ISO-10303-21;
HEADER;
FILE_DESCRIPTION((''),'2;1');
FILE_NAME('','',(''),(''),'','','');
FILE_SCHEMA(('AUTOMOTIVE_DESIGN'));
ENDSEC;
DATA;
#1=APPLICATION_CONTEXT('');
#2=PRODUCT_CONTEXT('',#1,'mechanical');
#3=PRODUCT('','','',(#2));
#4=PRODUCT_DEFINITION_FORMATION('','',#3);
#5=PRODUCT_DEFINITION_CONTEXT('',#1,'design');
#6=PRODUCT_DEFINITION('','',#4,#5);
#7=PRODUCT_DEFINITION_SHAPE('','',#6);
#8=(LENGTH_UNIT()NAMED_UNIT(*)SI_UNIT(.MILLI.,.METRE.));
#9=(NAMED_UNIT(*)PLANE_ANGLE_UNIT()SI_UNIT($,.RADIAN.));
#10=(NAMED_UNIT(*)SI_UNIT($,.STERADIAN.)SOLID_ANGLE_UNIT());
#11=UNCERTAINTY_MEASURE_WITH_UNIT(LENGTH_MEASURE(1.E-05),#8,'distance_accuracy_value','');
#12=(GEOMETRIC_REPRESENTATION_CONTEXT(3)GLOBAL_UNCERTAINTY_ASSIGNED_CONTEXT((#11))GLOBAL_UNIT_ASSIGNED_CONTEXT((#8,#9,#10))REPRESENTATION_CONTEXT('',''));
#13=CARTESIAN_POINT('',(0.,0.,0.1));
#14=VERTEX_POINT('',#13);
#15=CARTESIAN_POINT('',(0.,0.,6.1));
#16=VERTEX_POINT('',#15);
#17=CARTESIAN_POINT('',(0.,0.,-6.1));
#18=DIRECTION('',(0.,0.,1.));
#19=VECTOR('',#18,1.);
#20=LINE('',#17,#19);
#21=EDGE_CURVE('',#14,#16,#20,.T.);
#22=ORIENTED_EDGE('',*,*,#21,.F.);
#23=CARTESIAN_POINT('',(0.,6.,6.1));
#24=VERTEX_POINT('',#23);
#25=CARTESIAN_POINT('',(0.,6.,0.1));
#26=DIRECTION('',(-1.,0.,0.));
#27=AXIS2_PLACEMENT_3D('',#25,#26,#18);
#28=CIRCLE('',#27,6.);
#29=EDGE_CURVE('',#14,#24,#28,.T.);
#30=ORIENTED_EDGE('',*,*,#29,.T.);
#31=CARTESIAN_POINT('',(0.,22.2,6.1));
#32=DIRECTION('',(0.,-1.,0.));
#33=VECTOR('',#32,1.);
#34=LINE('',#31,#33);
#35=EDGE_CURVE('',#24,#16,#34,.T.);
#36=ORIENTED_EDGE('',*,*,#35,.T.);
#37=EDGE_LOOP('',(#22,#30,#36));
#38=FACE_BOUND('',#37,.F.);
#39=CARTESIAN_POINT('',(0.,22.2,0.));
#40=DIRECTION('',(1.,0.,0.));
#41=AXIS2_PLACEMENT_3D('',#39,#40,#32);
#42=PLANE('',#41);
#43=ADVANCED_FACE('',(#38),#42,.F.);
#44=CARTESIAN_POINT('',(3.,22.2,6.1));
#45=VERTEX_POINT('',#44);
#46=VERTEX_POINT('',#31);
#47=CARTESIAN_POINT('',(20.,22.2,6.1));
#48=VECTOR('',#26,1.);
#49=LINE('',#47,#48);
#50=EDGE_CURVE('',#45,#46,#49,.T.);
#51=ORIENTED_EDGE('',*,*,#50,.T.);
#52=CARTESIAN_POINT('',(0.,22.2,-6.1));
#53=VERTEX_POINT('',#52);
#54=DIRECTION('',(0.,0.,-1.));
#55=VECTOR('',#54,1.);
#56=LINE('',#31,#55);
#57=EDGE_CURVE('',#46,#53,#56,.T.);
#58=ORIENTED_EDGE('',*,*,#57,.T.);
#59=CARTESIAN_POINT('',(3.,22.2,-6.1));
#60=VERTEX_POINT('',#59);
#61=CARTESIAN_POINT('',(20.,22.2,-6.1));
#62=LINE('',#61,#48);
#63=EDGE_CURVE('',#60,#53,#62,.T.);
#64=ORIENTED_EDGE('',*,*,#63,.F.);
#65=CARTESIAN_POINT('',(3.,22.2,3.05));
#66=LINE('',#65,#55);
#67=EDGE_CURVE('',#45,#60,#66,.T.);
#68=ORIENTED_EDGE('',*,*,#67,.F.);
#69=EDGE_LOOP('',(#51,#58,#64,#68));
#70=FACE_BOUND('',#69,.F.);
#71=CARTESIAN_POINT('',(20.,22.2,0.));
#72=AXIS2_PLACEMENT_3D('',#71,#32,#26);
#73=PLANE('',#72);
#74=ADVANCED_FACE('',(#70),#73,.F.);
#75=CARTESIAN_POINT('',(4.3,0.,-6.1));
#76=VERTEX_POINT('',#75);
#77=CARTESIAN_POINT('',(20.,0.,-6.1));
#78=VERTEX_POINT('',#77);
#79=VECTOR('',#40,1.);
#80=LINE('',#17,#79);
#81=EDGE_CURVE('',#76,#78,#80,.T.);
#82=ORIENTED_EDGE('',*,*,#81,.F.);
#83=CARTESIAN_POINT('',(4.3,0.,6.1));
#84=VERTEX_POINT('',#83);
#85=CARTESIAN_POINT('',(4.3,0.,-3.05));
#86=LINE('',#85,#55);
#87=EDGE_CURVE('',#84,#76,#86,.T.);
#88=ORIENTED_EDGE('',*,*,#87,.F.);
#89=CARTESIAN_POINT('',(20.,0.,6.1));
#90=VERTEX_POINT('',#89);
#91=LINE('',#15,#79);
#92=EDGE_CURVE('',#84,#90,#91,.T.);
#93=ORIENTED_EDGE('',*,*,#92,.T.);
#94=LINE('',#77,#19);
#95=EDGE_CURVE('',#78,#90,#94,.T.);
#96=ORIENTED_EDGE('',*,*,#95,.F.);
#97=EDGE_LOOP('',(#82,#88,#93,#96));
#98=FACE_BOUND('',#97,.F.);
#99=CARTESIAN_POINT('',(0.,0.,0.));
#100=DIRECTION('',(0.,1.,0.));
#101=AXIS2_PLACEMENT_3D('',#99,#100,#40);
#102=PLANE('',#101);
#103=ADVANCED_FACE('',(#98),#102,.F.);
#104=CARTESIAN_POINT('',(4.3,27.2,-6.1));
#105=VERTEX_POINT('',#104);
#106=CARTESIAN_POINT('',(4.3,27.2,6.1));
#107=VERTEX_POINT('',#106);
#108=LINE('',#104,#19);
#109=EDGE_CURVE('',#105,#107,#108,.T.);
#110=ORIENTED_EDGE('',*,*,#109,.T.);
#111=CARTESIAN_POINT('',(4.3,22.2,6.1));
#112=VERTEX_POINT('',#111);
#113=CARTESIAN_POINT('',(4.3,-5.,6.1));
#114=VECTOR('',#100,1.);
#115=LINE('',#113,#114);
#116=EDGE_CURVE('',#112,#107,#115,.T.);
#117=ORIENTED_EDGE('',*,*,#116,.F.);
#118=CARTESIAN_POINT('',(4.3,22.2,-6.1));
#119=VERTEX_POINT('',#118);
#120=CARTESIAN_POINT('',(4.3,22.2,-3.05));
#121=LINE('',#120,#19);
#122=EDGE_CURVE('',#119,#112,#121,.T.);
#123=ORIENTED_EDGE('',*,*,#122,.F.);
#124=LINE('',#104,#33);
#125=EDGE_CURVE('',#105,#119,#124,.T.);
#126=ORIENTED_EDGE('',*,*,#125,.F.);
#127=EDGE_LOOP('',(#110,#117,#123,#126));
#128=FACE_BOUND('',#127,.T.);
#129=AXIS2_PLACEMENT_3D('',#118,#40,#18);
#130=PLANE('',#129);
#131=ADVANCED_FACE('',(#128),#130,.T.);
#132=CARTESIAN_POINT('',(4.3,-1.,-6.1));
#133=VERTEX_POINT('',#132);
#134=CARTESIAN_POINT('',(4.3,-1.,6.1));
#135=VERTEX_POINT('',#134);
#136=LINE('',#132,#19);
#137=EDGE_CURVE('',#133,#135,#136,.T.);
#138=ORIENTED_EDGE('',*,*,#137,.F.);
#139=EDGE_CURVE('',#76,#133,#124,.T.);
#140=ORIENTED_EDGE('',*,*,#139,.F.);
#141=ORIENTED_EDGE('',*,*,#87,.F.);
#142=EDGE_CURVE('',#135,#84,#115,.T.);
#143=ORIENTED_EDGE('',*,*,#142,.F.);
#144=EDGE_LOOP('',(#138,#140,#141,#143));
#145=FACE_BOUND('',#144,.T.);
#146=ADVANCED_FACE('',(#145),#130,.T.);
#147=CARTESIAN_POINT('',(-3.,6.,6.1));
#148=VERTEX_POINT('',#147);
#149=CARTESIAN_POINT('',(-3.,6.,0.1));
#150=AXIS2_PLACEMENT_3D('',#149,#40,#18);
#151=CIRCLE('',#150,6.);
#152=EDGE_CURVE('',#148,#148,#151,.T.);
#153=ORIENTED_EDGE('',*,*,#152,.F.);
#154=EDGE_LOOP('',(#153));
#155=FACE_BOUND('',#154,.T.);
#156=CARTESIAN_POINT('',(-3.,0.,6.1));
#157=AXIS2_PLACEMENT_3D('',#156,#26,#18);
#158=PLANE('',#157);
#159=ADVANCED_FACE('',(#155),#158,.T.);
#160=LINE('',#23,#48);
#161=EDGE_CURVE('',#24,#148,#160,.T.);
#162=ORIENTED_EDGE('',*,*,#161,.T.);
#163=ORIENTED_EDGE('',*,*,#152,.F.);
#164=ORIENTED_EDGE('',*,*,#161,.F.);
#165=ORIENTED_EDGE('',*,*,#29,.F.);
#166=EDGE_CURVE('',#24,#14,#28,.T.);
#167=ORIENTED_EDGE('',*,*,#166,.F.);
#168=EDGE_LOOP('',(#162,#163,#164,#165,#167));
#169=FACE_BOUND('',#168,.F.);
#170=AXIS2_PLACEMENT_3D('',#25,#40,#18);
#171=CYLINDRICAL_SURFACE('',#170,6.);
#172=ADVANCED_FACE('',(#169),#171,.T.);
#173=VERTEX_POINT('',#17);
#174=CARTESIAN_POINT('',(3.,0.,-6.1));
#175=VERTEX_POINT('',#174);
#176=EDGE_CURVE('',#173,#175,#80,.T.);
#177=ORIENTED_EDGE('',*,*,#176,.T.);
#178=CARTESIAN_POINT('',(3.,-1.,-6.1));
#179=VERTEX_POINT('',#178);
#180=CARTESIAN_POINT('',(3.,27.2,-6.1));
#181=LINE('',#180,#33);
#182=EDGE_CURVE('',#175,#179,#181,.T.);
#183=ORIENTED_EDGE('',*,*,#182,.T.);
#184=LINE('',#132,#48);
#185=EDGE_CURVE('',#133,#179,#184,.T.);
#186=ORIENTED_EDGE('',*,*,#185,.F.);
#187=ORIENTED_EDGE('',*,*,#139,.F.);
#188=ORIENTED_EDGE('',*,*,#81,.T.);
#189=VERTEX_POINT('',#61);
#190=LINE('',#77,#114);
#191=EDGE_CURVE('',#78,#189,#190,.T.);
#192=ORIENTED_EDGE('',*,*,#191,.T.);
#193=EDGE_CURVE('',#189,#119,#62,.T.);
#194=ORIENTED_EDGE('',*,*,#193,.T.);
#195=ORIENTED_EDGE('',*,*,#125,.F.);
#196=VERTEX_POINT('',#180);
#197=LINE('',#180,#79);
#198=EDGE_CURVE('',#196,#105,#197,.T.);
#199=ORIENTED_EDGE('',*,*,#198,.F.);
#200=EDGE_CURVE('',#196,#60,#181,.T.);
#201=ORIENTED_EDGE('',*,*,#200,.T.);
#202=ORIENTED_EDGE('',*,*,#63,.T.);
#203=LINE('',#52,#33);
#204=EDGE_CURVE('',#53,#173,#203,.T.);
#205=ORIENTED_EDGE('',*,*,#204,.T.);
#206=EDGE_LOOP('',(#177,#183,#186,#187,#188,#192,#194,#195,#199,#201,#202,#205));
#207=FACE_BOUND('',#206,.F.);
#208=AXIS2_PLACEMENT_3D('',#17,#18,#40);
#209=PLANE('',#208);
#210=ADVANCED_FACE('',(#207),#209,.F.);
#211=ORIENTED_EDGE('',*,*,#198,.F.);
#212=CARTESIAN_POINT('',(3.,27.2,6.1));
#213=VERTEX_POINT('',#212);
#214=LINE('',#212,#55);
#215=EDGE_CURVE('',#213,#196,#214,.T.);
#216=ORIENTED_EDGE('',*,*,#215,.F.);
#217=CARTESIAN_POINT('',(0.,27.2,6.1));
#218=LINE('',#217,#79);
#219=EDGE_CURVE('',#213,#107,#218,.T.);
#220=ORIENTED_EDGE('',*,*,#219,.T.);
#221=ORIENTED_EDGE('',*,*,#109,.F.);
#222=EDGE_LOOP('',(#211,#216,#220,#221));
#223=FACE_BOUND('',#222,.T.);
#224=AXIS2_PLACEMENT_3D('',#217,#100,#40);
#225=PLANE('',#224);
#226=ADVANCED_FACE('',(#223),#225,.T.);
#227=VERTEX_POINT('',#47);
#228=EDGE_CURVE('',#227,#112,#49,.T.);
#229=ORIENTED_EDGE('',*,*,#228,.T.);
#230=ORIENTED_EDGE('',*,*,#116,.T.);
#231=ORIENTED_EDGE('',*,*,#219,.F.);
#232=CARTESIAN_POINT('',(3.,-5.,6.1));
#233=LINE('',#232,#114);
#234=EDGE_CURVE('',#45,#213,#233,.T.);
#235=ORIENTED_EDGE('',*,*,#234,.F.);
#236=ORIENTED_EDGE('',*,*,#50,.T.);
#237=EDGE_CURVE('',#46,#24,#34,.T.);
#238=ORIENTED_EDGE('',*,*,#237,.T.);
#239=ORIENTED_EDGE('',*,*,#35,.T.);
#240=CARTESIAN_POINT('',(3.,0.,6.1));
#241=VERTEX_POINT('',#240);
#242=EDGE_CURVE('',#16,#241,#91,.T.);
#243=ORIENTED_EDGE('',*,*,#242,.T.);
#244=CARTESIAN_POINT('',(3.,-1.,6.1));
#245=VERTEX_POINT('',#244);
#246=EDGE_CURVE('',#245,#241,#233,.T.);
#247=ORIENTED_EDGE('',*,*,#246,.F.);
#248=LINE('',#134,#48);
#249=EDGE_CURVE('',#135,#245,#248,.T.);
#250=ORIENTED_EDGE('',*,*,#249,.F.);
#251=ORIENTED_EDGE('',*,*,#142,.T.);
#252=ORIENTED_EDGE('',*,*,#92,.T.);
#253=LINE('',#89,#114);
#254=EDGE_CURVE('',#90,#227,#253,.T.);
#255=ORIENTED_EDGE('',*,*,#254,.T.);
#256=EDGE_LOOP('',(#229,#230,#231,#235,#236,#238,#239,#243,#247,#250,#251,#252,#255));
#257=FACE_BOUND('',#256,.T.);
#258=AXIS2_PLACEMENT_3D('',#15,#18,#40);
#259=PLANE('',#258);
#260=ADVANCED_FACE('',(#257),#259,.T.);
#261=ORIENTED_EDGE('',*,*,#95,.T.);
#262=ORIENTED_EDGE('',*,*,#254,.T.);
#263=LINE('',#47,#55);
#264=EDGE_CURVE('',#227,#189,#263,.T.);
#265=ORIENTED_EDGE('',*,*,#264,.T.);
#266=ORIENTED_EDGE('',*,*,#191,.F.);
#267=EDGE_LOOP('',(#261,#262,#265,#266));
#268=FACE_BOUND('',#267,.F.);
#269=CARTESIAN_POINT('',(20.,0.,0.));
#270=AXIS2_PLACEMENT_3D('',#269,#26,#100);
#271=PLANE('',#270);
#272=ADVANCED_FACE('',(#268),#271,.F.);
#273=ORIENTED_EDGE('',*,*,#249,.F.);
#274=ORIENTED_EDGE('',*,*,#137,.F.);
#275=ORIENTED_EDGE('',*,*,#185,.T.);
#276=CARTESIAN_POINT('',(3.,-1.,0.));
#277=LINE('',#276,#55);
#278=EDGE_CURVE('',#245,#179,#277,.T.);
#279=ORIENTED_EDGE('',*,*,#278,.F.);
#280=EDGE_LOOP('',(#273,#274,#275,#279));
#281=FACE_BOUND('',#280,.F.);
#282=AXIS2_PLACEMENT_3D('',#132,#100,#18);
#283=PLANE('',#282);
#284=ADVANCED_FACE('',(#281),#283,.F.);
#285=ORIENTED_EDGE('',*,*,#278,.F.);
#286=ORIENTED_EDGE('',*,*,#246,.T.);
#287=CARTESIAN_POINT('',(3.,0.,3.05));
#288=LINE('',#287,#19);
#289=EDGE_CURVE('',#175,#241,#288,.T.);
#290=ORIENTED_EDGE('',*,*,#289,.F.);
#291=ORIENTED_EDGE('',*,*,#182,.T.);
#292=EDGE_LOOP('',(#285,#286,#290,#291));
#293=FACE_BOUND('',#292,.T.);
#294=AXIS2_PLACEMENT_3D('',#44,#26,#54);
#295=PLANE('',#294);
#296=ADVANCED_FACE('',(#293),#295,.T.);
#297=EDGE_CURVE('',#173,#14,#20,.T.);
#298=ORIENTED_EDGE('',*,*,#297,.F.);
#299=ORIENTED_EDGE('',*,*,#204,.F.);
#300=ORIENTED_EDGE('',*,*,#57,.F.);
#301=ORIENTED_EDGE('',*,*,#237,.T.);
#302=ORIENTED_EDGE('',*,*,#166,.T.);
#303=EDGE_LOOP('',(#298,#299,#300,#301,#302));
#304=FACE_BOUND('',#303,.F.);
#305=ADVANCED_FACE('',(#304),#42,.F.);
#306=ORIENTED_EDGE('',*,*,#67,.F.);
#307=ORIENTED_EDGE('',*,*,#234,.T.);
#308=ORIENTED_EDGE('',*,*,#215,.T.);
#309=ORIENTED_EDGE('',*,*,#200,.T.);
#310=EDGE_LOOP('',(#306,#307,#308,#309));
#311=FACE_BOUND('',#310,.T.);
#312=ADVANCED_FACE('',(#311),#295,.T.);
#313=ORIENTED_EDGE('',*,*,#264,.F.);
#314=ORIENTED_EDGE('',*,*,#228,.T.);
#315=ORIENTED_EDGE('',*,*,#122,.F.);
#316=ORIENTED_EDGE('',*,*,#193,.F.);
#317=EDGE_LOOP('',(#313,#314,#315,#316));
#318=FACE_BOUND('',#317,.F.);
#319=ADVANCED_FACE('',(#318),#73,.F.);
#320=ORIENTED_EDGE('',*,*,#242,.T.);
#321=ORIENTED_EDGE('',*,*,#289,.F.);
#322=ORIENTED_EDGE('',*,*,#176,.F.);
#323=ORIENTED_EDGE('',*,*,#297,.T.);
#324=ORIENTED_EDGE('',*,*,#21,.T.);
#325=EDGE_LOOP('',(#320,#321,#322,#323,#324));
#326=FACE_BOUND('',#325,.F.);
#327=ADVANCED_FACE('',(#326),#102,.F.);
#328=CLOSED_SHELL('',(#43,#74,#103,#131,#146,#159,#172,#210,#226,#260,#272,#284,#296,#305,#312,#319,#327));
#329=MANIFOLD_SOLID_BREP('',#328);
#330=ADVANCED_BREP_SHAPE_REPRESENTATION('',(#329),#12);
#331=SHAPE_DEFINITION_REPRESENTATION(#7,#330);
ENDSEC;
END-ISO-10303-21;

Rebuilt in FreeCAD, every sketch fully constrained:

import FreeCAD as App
import Part
import Sketcher
Q = App.Units.Quantity

doc = App.newDocument("Part")
body = doc.addObject("PartDesign::Body", "Body")

# Sketch on XY plane
sketch1 = body.newObject("Sketcher::SketchObject", "Sketch")
sketch1.AttachmentSupport = (doc.getObject("XY_Plane"), [""])
sketch1.MapMode = "FlatFace"
sketch1.addGeometry(Part.LineSegment(App.Vector(0, 22, 0), App.Vector(0, 0, 0)), False)
sketch1.addGeometry(Part.LineSegment(App.Vector(0, 0, 0), App.Vector(20, 0, 0)), False)
sketch1.addGeometry(Part.LineSegment(App.Vector(20, 0, 0), App.Vector(20, 22, 0)), False)
sketch1.addGeometry(Part.LineSegment(App.Vector(20, 22, 0), App.Vector(0, 22, 0)), False)
sketch1.addConstraint(Sketcher.Constraint("Coincident", 0, 2, 1, 1))
sketch1.addConstraint(Sketcher.Constraint("Coincident", 1, 2, 2, 1))
sketch1.addConstraint(Sketcher.Constraint("Coincident", 2, 2, 3, 1))
sketch1.addConstraint(Sketcher.Constraint("Coincident", 3, 2, 0, 1))
sketch1.addConstraint(Sketcher.Constraint("Vertical", 0))
sketch1.addConstraint(Sketcher.Constraint("Horizontal", 1))
sketch1.addConstraint(Sketcher.Constraint("Vertical", 2))
sketch1.addConstraint(Sketcher.Constraint("Horizontal", 3))
sketch1.addConstraint(Sketcher.Constraint("Coincident", 0, 2, -1, 1))
sketch1.addConstraint(Sketcher.Constraint("DistanceX", 1, 1, 1, 2, Q("20 mm")))
sketch1.addConstraint(Sketcher.Constraint("DistanceY", 0, 2, 0, 1, Q("22.2 mm")))
pad1 = body.newObject("PartDesign::Pad", "Pad")
pad1.Profile = sketch1
pad1.Length = 12.2
pad1.Midplane = True

# Sketch on YZ plane
sketch2 = body.newObject("Sketcher::SketchObject", "Sketch001")
sketch2.AttachmentSupport = (doc.getObject("YZ_Plane"), [""])
sketch2.MapMode = "FlatFace"
sketch2.addGeometry(Part.Circle(App.Vector(6, 0, 0), App.Vector(0, 0, 1), 6), False)
sketch2.addConstraint(Sketcher.Constraint("Diameter", 0, Q("12 mm")))
sketch2.addConstraint(Sketcher.Constraint("DistanceX", -1, 1, 0, 3, Q("6 mm")))
sketch2.addConstraint(Sketcher.Constraint("DistanceY", -1, 1, 0, 3, Q("0.1 mm")))
pad2 = body.newObject("PartDesign::Pad", "Pad001")
pad2.Profile = sketch2
pad2.Length = 3
pad2.Reversed = True

# Sketch on XZ plane
sketch3 = body.newObject("Sketcher::SketchObject", "Sketch002")
sketch3.AttachmentSupport = (doc.getObject("XZ_Plane"), [""])
sketch3.MapMode = "FlatFace"
sketch3.AttachmentOffset = App.Placement(App.Vector(0, 0, -22.2), App.Rotation())
sketch3.addGeometry(Part.LineSegment(App.Vector(3, -6.1, 0), App.Vector(3, 6.1, 0)), False)
sketch3.addGeometry(Part.LineSegment(App.Vector(3, 6.1, 0), App.Vector(4.3, 6.1, 0)), False)
sketch3.addGeometry(Part.LineSegment(App.Vector(4.3, 6.1, 0), App.Vector(4.3, -6.1, 0)), False)
sketch3.addGeometry(Part.LineSegment(App.Vector(4.3, -6.1, 0), App.Vector(3, -6.1, 0)), False)
sketch3.addConstraint(Sketcher.Constraint("Coincident", 0, 2, 1, 1))
sketch3.addConstraint(Sketcher.Constraint("Coincident", 1, 2, 2, 1))
sketch3.addConstraint(Sketcher.Constraint("Coincident", 2, 2, 3, 1))
sketch3.addConstraint(Sketcher.Constraint("Coincident", 3, 2, 0, 1))
sketch3.addConstraint(Sketcher.Constraint("Vertical", 0))
sketch3.addConstraint(Sketcher.Constraint("Horizontal", 1))
sketch3.addConstraint(Sketcher.Constraint("Vertical", 2))
sketch3.addConstraint(Sketcher.Constraint("Horizontal", 3))
sketch3.addConstraint(Sketcher.Constraint("DistanceX", 1, 1, 1, 2, Q("1.3 mm")))
sketch3.addConstraint(Sketcher.Constraint("DistanceY", 0, 1, 0, 2, Q("12.2 mm")))
sketch3.addConstraint(Sketcher.Constraint("DistanceX", -1, 1, 0, 2, Q("3 mm")))
sketch3.addConstraint(Sketcher.Constraint("DistanceY", -1, 1, 0, 2, Q("6.1 mm")))
pad3 = body.newObject("PartDesign::Pad", "Pad002")
pad3.Profile = sketch3
pad3.Type = "TwoLengths"
pad3.Length = 5
pad3.Length2 = 27.2
pad3.Reversed = True

# Sketch on YZ plane
sketch4 = body.newObject("Sketcher::SketchObject", "Sketch003")
sketch4.AttachmentSupport = (doc.getObject("YZ_Plane"), [""])
sketch4.MapMode = "FlatFace"
sketch4.AttachmentOffset = App.Placement(App.Vector(0, 0, 4.3), App.Rotation())
sketch4.addGeometry(Part.LineSegment(App.Vector(-1, 6.1, 0), App.Vector(-5, 6.1, 0)), False)
sketch4.addGeometry(Part.LineSegment(App.Vector(-5, 6.1, 0), App.Vector(-5, -6.1, 0)), False)
sketch4.addGeometry(Part.LineSegment(App.Vector(-5, -6.1, 0), App.Vector(-1, -6.1, 0)), False)
sketch4.addGeometry(Part.LineSegment(App.Vector(-1, -6.1, 0), App.Vector(-1, 6.1, 0)), False)
sketch4.addConstraint(Sketcher.Constraint("Coincident", 0, 2, 1, 1))
sketch4.addConstraint(Sketcher.Constraint("Coincident", 1, 2, 2, 1))
sketch4.addConstraint(Sketcher.Constraint("Coincident", 2, 2, 3, 1))
sketch4.addConstraint(Sketcher.Constraint("Coincident", 3, 2, 0, 1))
sketch4.addConstraint(Sketcher.Constraint("Horizontal", 0))
sketch4.addConstraint(Sketcher.Constraint("Vertical", 1))
sketch4.addConstraint(Sketcher.Constraint("Horizontal", 2))
sketch4.addConstraint(Sketcher.Constraint("Vertical", 3))
sketch4.addConstraint(Sketcher.Constraint("DistanceX", 2, 2, -1, 1, Q("1 mm")))
sketch4.addConstraint(Sketcher.Constraint("DistanceX", 0, 2, 0, 1, Q("4 mm")))
sketch4.addConstraint(Sketcher.Constraint("DistanceY", 1, 2, 1, 1, Q("12.2 mm")))
sketch4.addConstraint(Sketcher.Constraint("DistanceY", -1, 1, 0, 2, Q("6.1 mm")))
pocket1 = body.newObject("PartDesign::Pocket", "Pocket")
pocket1.Profile = sketch4
pocket1.Length = 2

doc.recompute()
